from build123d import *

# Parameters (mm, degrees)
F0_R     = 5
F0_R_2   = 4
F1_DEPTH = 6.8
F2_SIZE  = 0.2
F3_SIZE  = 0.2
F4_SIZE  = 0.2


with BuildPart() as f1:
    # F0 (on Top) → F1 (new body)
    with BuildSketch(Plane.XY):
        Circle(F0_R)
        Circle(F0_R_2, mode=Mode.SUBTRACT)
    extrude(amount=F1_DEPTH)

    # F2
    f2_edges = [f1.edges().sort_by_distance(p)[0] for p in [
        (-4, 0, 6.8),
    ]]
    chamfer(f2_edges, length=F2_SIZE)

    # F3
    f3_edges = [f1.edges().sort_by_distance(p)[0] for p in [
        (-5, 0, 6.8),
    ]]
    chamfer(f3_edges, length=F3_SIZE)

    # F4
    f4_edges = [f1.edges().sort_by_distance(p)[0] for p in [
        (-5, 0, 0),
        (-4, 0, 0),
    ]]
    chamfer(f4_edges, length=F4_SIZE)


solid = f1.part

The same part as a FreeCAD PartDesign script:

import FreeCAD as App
import Part
import Sketcher
from FreeCAD import Vector


def edges_at(feature, points):
    """Names of the edges that pass closest to the given points."""
    edges = feature.Shape.Edges
    near = lambda p: min(range(len(edges)), key=lambda i: edges[i].distToShape(Part.Vertex(*p))[0])
    return sorted({f"Edge{near(p) + 1}" for p in points})

doc = App.newDocument("Part")
body = doc.addObject("PartDesign::Body", "Body")

# Sketch on XY plane
sketch1 = doc.addObject("Sketcher::SketchObject", "Sketch")
body.addObject(sketch1)
sketch1.AttachmentSupport = (doc.XY_Plane, [""])
sketch1.MapMode = "FlatFace"
sketch1.addGeometry([
    Part.Circle(Vector(0, 0, 0), Vector(0, 0, 1), 5),
    Part.Circle(Vector(0, 0, 0), Vector(0, 0, 1), 4),
], False)
sketch1.addConstraint([
    Sketcher.Constraint("Coincident", 0, 3, -1, 1),
    Sketcher.Constraint("Coincident", 1, 3, -1, 1),
    Sketcher.Constraint("Diameter", 0, 10.0),
    Sketcher.Constraint("Diameter", 1, 8.0),
])
pad1 = doc.addObject("PartDesign::Pad", "Pad")
body.addObject(pad1)
pad1.Profile = sketch1
pad1.Length = 6.8
doc.recompute()

chamfer = doc.addObject("PartDesign::Chamfer", "Chamfer")
body.addObject(chamfer)
chamfer.Base = (pad1, edges_at(pad1, [(-4, 0, 6.8)]))
chamfer.Size = 0.2
doc.recompute()

chamfer2 = doc.addObject("PartDesign::Chamfer", "Chamfer001")
body.addObject(chamfer2)
chamfer2.Base = (chamfer, edges_at(chamfer, [(-5, 0, 6.8)]))
chamfer2.Size = 0.2
doc.recompute()

chamfer3 = doc.addObject("PartDesign::Chamfer", "Chamfer002")
body.addObject(chamfer3)
chamfer3.Base = (chamfer2, edges_at(chamfer2, [(-5, 0, 0), (-4, 0, 0)]))
chamfer3.Size = 0.2

doc.recompute()
